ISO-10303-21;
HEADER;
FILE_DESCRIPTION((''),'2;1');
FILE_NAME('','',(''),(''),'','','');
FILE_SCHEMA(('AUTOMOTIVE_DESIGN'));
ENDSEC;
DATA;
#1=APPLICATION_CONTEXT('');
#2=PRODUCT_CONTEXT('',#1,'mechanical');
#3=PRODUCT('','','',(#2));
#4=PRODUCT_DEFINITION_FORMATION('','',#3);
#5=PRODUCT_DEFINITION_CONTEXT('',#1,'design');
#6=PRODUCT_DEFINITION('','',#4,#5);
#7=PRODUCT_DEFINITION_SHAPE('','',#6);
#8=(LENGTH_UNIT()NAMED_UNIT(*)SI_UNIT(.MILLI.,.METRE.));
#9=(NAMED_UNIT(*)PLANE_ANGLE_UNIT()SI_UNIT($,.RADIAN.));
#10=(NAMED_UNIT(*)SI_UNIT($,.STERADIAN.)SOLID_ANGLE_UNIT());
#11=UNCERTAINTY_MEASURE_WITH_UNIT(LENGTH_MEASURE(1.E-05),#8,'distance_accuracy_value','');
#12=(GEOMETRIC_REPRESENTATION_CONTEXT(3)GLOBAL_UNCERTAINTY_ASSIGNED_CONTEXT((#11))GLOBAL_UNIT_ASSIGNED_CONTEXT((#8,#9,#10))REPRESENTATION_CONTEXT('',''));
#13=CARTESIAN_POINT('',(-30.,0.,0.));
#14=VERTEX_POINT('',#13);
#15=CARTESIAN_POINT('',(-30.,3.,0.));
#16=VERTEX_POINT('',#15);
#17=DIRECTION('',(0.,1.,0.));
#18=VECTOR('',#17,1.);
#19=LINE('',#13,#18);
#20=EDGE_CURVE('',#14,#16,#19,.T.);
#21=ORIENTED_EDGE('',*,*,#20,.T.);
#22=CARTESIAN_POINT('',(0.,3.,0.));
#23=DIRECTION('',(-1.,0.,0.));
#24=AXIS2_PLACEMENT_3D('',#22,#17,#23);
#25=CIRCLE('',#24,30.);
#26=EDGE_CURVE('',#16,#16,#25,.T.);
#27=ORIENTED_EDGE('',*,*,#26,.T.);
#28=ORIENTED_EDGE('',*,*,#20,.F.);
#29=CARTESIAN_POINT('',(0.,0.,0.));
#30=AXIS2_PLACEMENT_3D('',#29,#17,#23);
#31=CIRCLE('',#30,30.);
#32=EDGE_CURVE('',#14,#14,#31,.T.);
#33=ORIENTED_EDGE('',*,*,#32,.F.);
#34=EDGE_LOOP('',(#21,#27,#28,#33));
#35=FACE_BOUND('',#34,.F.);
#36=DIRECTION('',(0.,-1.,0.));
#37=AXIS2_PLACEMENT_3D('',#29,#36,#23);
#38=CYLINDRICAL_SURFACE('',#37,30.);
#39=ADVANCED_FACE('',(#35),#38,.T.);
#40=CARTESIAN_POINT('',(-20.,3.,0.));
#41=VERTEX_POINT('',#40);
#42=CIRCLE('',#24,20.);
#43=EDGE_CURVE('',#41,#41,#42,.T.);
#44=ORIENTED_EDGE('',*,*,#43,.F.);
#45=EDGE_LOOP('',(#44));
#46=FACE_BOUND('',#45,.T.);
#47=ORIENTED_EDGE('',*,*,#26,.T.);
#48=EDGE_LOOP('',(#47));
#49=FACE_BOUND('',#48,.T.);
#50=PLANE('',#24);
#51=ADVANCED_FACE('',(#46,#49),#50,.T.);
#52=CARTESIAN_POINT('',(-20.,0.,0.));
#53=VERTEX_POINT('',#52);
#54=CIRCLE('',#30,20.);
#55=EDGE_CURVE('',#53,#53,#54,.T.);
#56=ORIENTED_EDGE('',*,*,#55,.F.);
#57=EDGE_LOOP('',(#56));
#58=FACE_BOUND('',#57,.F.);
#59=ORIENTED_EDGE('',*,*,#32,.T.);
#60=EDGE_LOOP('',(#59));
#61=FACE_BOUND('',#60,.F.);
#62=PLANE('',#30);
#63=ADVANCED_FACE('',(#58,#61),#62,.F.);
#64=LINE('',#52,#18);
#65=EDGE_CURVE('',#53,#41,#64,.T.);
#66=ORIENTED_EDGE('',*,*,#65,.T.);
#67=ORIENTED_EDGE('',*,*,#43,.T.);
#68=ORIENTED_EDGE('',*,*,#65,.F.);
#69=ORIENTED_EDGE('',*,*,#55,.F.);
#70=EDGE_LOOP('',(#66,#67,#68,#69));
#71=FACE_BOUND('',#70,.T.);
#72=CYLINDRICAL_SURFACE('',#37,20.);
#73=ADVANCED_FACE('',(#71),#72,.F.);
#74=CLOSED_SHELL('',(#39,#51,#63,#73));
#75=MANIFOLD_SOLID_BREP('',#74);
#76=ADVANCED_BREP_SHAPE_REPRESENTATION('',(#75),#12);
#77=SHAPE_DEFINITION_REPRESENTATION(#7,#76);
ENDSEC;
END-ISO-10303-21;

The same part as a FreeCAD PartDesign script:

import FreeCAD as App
import Part
import Sketcher

doc = App.newDocument("Part")
params = doc.addObject("Spreadsheet::Sheet", "Params")
for row, (alias, value) in enumerate([
    ("sketch1_diameter", "60 mm"),
    ("sketch1_diameter2", "40 mm"),
    ("pad1_length", "3 mm"),
], start=1):
    params.set(f"A{row}", alias)
    params.set(f"B{row}", "=" + value)
    params.setAlias(f"B{row}", alias)

body = doc.addObject("PartDesign::Body", "Body")

# Sketch on XZ plane
sketch1 = body.newObject("Sketcher::SketchObject", "Sketch")
sketch1.AttachmentSupport = (doc.getObject("XZ_Plane"), [""])
sketch1.MapMode = "FlatFace"
sketch1.addGeometry([
    Part.Circle(App.Vector(0, 0, 0), App.Vector(0, 0, 1), 30),
    Part.Circle(App.Vector(0, 0, 0), App.Vector(0, 0, 1), 20),
], False)
sketch1.addConstraint([
    Sketcher.Constraint("Coincident", 0, 3, -1, 1),
    Sketcher.Constraint("Coincident", 1, 3, -1, 1),
    Sketcher.Constraint("Diameter", 0, 60.0),
    Sketcher.Constraint("Diameter", 1, 40.0),
])
sketch1.setExpression("Constraints[2]", "Params.sketch1_diameter")
sketch1.setExpression("Constraints[3]", "Params.sketch1_diameter2")
pad1 = body.newObject("PartDesign::Pad", "Pad")
pad1.Profile = sketch1
pad1.setExpression("Length", "Params.pad1_length")
pad1.Reversed = True

doc.recompute()
